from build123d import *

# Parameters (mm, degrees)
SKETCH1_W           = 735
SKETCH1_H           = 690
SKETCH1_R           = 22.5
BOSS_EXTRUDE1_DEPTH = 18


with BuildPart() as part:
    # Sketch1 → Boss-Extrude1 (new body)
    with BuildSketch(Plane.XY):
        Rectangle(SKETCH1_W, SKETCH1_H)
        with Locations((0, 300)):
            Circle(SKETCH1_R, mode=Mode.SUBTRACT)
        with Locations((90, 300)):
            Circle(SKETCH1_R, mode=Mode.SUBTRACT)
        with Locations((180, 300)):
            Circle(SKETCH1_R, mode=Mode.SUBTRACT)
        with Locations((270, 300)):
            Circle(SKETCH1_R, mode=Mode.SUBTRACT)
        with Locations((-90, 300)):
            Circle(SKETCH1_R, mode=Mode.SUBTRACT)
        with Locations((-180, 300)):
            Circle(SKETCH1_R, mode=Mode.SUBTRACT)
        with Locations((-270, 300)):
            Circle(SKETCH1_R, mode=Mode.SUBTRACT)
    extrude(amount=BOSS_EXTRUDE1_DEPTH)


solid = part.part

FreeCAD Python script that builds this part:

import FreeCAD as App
import Part
import Sketcher
Q = App.Units.Quantity


def add_polygon(sketch, points):
    """Adds a closed chain of lines whose ends are joined by coincident constraints."""
    first, n = sketch.GeometryCount, len(points)
    for a, b in zip(points, points[1:] + points[:1]):
        sketch.addGeometry(Part.LineSegment(App.Vector(*a, 0), App.Vector(*b, 0)), False)
    for i in range(n):
        sketch.addConstraint(Sketcher.Constraint("Coincident", first + i, 2, first + (i + 1) % n, 1))

doc = App.newDocument("Part")
body = doc.addObject("PartDesign::Body", "Body")

# Sketch on XY plane
sketch1 = body.newObject("Sketcher::SketchObject", "Sketch")
sketch1.AttachmentSupport = (doc.getObject("XY_Plane"), [""])
sketch1.MapMode = "FlatFace"
add_polygon(sketch1, [(-368, 345), (-368, -345), (368, -345), (368, 345)])  # lines 0-3
sketch1.addGeometry(Part.Circle(App.Vector(-270, 300, 0), App.Vector(0, 0, 1), 22), False)  # 4
sketch1.addGeometry(Part.Circle(App.Vector(-180, 300, 0), App.Vector(0, 0, 1), 22), False)  # 5
sketch1.addGeometry(Part.Circle(App.Vector(-90, 300, 0), App.Vector(0, 0, 1), 22), False)  # 6
sketch1.addGeometry(Part.Circle(App.Vector(0, 300, 0), App.Vector(0, 0, 1), 22), False)  # 7
sketch1.addGeometry(Part.Circle(App.Vector(90, 300, 0), App.Vector(0, 0, 1), 22), False)  # 8
sketch1.addGeometry(Part.Circle(App.Vector(180, 300, 0), App.Vector(0, 0, 1), 22), False)  # 9
sketch1.addGeometry(Part.Circle(App.Vector(270, 300, 0), App.Vector(0, 0, 1), 22), False)  # 10
sketch1.addConstraint(Sketcher.Constraint("Vertical", 0))
sketch1.addConstraint(Sketcher.Constraint("Horizontal", 1))
sketch1.addConstraint(Sketcher.Constraint("Vertical", 2))
sketch1.addConstraint(Sketcher.Constraint("Horizontal", 3))
sketch1.addConstraint(Sketcher.Constraint("Equal", 4, 5))
sketch1.addConstraint(Sketcher.Constraint("Equal", 5, 6))
sketch1.addConstraint(Sketcher.Constraint("Equal", 6, 7))
sketch1.addConstraint(Sketcher.Constraint("Equal", 7, 8))
sketch1.addConstraint(Sketcher.Constraint("Equal", 8, 9))
sketch1.addConstraint(Sketcher.Constraint("Equal", 9, 10))
sketch1.addConstraint(Sketcher.Constraint("Symmetric", 0, 2, 2, 2, -1, 1))
sketch1.addConstraint(Sketcher.Constraint("Symmetric", 6, 3, 8, 3, -2))
sketch1.addConstraint(Sketcher.Constraint("Symmetric", 5, 3, 9, 3, -2))
sketch1.addConstraint(Sketcher.Constraint("Symmetric", 4, 3, 10, 3, -2))
sketch1.addConstraint(Sketcher.Constraint("PointOnObject", 7, 3, -2))
sketch1.addConstraint(Sketcher.Constraint("Horizontal", 4, 3, 5, 3))
sketch1.addConstraint(Sketcher.Constraint("Horizontal", 5, 3, 6, 3))
sketch1.addConstraint(Sketcher.Constraint("Horizontal", 6, 3, 7, 3))
sketch1.addConstraint(Sketcher.Constraint("Diameter", 4, Q("45 mm")))
sketch1.addConstraint(Sketcher.Constraint("DistanceX", 1, 1, 1, 2, Q("735 mm")))
sketch1.addConstraint(Sketcher.Constraint("DistanceY", 0, 2, 0, 1, Q("690 mm")))
sketch1.addConstraint(Sketcher.Constraint("DistanceX", 4, 3, -1, 1, Q("270 mm")))
sketch1.addConstraint(Sketcher.Constraint("DistanceY", -1, 1, 4, 3, Q("300 mm")))
sketch1.addConstraint(Sketcher.Constraint("DistanceX", 5, 3, -1, 1, Q("180 mm")))
sketch1.addConstraint(Sketcher.Constraint("DistanceX", 6, 3, -1, 1, Q("90 mm")))
pad1 = body.newObject("PartDesign::Pad", "Pad")
pad1.Profile = sketch1
pad1.Length = 18

doc.recompute()
